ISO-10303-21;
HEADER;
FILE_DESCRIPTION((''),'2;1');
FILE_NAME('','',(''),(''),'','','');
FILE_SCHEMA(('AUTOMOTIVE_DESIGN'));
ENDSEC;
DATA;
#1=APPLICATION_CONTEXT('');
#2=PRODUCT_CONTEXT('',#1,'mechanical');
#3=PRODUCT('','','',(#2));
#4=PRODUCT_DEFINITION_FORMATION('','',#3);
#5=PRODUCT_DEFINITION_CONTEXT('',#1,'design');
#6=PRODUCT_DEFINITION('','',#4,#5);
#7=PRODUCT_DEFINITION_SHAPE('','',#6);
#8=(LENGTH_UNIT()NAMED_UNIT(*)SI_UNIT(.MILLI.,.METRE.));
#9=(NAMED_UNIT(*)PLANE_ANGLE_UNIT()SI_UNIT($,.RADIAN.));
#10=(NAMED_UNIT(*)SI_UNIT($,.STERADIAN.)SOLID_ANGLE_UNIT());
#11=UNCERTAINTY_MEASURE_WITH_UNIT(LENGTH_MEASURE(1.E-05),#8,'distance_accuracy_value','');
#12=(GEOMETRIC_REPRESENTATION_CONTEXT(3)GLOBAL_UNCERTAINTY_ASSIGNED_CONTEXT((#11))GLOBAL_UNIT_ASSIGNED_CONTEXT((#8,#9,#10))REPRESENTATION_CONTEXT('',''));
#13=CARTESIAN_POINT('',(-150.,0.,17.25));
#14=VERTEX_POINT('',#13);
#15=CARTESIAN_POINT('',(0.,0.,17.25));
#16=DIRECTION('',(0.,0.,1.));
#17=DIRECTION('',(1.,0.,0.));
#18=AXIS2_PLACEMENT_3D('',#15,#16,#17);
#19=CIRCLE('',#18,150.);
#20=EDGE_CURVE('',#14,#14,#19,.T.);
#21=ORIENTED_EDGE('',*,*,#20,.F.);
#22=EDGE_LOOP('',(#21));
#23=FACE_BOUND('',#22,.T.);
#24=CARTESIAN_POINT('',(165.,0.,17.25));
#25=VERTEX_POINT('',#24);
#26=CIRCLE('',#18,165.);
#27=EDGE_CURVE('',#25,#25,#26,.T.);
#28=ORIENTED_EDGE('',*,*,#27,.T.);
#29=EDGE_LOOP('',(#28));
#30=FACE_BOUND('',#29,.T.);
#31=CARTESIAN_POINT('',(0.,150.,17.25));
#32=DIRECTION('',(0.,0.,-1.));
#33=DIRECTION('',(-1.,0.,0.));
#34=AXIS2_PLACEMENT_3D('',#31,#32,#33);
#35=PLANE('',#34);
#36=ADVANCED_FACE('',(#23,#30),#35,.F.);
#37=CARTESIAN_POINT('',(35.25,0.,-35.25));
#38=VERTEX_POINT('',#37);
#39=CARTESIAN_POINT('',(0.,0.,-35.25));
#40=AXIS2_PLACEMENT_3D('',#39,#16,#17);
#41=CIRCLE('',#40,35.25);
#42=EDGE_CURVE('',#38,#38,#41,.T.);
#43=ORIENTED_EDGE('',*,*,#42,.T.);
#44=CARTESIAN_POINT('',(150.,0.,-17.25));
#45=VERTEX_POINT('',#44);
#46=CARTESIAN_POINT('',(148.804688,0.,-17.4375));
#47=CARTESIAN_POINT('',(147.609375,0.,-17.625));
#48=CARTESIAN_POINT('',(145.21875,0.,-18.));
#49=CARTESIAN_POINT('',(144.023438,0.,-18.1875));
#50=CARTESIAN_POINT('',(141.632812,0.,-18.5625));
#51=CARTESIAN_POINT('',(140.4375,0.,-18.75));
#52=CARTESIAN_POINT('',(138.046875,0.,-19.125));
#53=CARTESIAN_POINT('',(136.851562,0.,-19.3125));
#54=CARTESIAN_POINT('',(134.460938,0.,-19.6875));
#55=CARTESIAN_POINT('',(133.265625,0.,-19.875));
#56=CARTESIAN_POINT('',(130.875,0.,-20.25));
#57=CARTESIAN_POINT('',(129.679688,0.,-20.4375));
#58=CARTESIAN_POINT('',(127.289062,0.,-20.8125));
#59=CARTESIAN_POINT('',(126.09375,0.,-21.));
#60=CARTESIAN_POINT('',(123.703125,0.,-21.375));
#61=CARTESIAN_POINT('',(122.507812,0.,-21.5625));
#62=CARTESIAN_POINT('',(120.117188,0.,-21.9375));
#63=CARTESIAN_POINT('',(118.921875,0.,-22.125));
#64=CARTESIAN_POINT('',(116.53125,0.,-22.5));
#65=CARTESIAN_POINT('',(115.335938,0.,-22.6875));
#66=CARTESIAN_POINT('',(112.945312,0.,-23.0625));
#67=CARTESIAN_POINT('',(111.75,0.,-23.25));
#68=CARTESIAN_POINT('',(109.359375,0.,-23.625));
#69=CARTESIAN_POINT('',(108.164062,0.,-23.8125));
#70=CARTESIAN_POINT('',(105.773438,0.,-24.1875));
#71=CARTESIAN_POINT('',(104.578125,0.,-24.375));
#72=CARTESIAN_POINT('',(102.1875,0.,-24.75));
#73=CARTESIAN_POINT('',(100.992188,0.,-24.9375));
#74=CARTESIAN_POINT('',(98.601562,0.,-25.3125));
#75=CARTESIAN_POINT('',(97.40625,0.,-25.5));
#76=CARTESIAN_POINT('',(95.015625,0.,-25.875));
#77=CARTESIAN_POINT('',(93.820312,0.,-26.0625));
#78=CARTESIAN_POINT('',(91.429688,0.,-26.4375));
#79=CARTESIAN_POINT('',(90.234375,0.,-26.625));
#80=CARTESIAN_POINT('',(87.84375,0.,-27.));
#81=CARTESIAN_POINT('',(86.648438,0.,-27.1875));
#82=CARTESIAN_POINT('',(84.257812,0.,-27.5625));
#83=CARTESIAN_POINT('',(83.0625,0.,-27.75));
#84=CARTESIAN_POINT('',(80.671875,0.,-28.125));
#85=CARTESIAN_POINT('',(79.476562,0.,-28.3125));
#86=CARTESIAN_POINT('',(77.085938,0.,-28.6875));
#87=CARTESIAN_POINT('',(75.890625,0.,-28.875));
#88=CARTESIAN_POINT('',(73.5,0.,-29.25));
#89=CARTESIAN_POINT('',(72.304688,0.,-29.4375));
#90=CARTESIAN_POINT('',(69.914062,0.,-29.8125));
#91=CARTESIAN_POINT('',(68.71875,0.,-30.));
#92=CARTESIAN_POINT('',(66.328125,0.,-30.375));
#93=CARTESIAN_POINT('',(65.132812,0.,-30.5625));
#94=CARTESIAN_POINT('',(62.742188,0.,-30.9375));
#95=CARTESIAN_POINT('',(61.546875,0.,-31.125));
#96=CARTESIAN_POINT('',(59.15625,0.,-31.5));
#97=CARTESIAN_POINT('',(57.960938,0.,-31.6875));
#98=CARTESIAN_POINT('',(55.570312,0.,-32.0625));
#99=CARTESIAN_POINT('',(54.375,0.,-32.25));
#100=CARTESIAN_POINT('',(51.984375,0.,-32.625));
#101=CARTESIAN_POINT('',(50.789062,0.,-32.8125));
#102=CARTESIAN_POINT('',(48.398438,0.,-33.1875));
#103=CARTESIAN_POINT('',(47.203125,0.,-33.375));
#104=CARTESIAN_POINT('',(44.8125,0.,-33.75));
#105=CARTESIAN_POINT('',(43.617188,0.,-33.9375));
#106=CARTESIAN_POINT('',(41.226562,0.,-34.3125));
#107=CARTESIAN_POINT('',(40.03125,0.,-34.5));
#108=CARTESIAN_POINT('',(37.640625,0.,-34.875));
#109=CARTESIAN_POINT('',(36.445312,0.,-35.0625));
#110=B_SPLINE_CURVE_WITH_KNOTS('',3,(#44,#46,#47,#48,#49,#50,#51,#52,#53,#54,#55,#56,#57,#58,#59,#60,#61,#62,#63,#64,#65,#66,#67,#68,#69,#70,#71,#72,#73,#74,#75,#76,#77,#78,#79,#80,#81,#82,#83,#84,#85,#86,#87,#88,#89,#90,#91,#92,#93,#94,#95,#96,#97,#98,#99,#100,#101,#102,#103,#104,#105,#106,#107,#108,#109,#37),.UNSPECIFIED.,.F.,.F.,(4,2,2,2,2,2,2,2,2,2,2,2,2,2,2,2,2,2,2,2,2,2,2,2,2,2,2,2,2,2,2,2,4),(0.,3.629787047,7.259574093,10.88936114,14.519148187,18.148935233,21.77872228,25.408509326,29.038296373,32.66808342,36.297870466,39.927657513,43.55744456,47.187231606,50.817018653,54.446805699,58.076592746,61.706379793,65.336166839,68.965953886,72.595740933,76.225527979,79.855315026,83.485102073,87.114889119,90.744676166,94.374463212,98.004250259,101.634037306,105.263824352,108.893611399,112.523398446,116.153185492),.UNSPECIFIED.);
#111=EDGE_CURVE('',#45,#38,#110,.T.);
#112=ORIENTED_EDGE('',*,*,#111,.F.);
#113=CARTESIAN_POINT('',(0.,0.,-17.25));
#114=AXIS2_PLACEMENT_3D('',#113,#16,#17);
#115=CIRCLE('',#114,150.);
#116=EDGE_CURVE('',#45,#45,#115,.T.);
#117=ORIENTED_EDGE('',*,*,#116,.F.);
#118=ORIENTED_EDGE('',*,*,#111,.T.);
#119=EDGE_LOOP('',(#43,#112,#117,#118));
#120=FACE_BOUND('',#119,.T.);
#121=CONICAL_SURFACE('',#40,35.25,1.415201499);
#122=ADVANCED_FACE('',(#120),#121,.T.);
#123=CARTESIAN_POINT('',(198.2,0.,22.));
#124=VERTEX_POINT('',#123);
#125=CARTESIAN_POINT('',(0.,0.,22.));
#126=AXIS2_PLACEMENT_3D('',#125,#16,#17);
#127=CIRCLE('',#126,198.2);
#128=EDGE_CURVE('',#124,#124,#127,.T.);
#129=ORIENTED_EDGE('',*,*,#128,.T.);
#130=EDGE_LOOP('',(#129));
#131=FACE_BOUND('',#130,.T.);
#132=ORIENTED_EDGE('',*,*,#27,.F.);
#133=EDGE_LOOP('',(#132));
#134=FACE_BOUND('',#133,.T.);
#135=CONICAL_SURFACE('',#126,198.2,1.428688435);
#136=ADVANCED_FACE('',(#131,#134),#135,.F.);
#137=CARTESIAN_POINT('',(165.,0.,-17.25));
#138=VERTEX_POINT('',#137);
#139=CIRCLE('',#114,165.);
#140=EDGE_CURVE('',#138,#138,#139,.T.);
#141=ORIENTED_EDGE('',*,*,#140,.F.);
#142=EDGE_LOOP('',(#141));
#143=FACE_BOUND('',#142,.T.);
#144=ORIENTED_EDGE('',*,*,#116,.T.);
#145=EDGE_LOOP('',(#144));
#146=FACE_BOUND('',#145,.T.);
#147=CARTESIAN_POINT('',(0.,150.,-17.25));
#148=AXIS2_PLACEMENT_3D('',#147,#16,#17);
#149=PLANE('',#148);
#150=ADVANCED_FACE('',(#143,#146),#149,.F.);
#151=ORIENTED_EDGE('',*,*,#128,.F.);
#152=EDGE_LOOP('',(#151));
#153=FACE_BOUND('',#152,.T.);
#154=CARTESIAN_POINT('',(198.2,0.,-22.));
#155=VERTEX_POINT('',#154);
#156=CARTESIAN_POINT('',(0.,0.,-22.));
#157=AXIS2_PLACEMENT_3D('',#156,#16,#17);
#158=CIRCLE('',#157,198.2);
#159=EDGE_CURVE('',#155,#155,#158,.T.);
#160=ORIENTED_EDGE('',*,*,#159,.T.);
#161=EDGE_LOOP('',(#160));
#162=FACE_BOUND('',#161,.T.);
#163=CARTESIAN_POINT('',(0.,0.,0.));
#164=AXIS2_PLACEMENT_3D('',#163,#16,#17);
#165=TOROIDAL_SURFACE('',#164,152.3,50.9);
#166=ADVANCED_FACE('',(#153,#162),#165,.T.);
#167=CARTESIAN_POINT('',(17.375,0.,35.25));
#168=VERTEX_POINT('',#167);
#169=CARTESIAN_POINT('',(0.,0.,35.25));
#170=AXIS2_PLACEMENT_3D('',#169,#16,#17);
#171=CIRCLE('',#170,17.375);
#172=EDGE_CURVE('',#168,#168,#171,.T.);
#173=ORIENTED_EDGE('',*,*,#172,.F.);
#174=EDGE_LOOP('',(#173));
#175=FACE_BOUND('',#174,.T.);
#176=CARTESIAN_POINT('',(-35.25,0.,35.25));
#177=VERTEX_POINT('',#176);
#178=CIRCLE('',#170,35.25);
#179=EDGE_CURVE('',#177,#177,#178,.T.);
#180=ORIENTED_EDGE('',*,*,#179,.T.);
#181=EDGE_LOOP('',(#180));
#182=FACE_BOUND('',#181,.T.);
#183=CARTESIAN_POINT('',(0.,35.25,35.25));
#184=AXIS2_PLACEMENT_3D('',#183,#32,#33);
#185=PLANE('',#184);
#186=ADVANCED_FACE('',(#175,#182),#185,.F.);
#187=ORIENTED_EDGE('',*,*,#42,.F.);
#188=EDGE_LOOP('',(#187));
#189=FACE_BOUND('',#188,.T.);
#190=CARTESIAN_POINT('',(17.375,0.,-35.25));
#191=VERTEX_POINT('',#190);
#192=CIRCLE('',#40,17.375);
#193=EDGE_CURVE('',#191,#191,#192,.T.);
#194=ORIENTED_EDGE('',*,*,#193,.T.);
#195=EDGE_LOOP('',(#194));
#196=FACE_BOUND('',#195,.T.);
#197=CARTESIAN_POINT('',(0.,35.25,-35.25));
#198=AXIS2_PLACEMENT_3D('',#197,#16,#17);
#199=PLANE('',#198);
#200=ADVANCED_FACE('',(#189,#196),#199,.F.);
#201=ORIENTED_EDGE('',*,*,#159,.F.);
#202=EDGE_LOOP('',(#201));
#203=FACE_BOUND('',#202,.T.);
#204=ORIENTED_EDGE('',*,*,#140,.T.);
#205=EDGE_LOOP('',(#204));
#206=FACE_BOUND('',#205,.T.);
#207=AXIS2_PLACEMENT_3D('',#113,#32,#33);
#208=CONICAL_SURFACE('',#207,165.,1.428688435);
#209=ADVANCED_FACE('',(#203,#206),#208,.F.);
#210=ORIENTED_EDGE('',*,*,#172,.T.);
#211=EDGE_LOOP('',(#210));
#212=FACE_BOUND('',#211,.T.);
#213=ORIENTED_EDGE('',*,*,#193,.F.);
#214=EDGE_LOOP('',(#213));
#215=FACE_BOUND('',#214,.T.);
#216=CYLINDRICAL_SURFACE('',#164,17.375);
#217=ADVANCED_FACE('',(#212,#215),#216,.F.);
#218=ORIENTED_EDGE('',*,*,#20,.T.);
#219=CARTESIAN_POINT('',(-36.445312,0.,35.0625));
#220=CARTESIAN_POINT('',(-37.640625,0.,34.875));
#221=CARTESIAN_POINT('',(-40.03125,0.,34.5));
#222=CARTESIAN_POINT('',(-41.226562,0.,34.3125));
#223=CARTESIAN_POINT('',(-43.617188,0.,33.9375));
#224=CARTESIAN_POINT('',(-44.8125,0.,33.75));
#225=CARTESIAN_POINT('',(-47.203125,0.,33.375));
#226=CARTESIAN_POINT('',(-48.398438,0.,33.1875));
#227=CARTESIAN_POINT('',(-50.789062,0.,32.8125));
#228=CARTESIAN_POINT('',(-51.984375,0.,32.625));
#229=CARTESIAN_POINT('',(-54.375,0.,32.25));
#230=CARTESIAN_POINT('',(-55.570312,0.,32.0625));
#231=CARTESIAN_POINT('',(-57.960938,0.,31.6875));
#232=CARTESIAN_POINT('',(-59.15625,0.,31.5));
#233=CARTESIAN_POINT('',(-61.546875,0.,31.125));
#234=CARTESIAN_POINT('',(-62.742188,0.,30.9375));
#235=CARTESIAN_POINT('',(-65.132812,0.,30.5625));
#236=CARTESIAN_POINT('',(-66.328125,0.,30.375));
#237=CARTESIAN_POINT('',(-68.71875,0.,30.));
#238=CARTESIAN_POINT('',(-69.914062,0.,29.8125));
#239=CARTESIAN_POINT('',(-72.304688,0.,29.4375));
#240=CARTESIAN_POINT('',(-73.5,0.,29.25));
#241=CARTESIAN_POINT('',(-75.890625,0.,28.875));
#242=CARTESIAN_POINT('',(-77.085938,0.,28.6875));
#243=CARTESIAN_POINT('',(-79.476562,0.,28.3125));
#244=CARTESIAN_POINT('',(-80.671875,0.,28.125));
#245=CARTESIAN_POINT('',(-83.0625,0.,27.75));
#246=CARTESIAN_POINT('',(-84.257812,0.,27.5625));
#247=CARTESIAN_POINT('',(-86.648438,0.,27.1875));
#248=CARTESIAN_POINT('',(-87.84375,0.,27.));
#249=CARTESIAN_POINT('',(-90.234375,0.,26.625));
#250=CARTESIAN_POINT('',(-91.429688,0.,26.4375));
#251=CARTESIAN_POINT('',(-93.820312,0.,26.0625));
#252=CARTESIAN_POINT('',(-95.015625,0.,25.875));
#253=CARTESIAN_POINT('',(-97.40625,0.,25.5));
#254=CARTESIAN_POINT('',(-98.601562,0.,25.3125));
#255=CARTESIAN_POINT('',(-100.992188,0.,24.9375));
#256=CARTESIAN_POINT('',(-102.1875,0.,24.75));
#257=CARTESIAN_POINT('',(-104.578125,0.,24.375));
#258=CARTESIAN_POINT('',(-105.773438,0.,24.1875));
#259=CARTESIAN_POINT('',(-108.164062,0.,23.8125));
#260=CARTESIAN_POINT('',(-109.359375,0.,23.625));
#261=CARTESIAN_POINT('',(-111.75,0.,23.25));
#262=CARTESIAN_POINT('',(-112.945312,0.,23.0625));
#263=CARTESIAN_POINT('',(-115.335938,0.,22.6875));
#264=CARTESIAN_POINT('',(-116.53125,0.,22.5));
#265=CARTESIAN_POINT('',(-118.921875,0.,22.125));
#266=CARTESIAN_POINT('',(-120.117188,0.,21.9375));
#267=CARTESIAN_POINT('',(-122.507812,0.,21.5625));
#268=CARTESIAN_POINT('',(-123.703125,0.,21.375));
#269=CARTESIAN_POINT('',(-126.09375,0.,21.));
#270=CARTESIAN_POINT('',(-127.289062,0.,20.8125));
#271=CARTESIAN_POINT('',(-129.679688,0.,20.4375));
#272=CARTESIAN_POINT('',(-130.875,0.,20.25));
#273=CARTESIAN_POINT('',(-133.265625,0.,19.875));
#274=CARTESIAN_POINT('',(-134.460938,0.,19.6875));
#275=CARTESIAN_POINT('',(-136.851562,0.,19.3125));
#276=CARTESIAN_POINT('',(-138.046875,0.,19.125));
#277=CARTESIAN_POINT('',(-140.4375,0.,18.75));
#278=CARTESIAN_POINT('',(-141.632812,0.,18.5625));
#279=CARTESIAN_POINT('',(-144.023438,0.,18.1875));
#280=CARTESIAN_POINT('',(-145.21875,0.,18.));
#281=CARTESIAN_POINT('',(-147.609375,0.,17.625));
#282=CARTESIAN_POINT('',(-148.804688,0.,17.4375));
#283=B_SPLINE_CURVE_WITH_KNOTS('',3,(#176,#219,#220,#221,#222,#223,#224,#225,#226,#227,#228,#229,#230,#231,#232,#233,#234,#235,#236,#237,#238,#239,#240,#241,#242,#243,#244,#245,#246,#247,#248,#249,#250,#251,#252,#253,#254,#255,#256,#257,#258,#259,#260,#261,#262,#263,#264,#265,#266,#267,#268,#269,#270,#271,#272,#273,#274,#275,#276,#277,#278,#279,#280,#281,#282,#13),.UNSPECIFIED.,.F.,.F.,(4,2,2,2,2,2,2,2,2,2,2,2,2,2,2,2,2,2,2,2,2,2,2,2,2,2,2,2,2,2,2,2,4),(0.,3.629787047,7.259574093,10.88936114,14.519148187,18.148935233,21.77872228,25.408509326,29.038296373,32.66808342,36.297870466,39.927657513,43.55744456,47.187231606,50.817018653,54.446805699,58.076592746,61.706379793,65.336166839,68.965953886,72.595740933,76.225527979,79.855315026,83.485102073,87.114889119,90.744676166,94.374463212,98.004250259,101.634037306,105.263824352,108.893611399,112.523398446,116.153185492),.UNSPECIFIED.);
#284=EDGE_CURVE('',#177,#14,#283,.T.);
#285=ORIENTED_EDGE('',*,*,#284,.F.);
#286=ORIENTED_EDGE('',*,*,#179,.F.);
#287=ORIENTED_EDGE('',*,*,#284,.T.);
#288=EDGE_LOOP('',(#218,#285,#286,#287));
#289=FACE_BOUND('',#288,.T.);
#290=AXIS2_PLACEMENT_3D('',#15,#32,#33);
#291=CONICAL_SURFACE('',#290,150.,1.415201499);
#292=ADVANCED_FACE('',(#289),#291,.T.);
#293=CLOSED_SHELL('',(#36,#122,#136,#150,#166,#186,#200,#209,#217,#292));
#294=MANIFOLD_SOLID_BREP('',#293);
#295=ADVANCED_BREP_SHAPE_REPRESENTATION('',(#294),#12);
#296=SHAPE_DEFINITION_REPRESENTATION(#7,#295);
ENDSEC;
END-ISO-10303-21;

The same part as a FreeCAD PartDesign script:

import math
import FreeCAD as App
import Part
import Sketcher

doc = App.newDocument("Part")
body = doc.addObject("PartDesign::Body", "Body")

# Sketch on YZ plane
sketch1 = body.newObject("Sketcher::SketchObject", "Sketch")
sketch1.AttachmentSupport = (doc.getObject("YZ_Plane"), [""])
sketch1.MapMode = "FlatFace"
sketch1.addGeometry([
    Part.LineSegment(App.Vector(35.25, -35.25, 0), App.Vector(150, -17.25, 0)),  # 0
    Part.LineSegment(App.Vector(150, -17.25, 0), App.Vector(165, -17.25, 0)),  # 1
    Part.LineSegment(App.Vector(165, -17.25, 0), App.Vector(198.2, -22, 0)),  # 2
    Part.ArcOfCircle(Part.Circle(App.Vector(152.3, 0, 0), App.Vector(0, 0, 1), 50.9), math.radians(-25.608532), math.radians(25.608532)),  # 3
    Part.LineSegment(App.Vector(198.2, 22, 0), App.Vector(165, 17.25, 0)),  # 4
    Part.LineSegment(App.Vector(165, 17.25, 0), App.Vector(150, 17.25, 0)),  # 5
    Part.LineSegment(App.Vector(150, 17.25, 0), App.Vector(35.25, 35.25, 0)),  # 6
    Part.LineSegment(App.Vector(35.25, 35.25, 0), App.Vector(17.375, 35.25, 0)),  # 7
    Part.LineSegment(App.Vector(17.375, 35.25, 0), App.Vector(17.375, -35.25, 0)),  # 8
    Part.LineSegment(App.Vector(17.375, -35.25, 0), App.Vector(35.25, -35.25, 0)),  # 9
], False)
sketch1.addConstraint([
    Sketcher.Constraint("Coincident", 0, 2, 1, 1),
    Sketcher.Constraint("Coincident", 1, 2, 2, 1),
    Sketcher.Constraint("Coincident", 2, 2, 3, 1),
    Sketcher.Constraint("Coincident", 3, 2, 4, 1),
    Sketcher.Constraint("Coincident", 4, 2, 5, 1),
    Sketcher.Constraint("Coincident", 5, 2, 6, 1),
    Sketcher.Constraint("Coincident", 6, 2, 7, 1),
    Sketcher.Constraint("Coincident", 7, 2, 8, 1),
    Sketcher.Constraint("Coincident", 8, 2, 9, 1),
    Sketcher.Constraint("Coincident", 9, 2, 0, 1),
    Sketcher.Constraint("Horizontal", 1),
    Sketcher.Constraint("Horizontal", 5),
    Sketcher.Constraint("Horizontal", 7),
    Sketcher.Constraint("Vertical", 8),
    Sketcher.Constraint("Horizontal", 9),
    Sketcher.Constraint("Symmetric", 2, 2, 3, 2, -1),
    Sketcher.Constraint("Symmetric", 1, 2, 4, 2, -1),
    Sketcher.Constraint("Symmetric", 6, 2, 9, 2, -1),
    Sketcher.Constraint("Vertical", 0, 2, 5, 2),
    Sketcher.Constraint("Radius", 3, 50.9),
    Sketcher.Constraint("DistanceX", 1, 1, 1, 2, 15.0),
    Sketcher.Constraint("DistanceY", 8, 2, 8, 1, 70.5),
    Sketcher.Constraint("DistanceX", -1, 1, 0, 2, 150.0),
    Sketcher.Constraint("DistanceY", 2, 2, -1, 1, 22.0),
    Sketcher.Constraint("DistanceY", 5, 2, 6, 2, 18.0),
    Sketcher.Constraint("DistanceX", -1, 1, 3, 3, 152.3),
    Sketcher.Constraint("DistanceX", 7, 2, 7, 1, 17.875),
    Sketcher.Constraint("DistanceX", -1, 1, 6, 2, 35.25),
])
revolution = body.newObject("PartDesign::Revolution", "Revolution")
revolution.Profile = sketch1
revolution.ReferenceAxis = (sketch1, ["V_Axis"])
revolution.Angle = 360

doc.recompute()
